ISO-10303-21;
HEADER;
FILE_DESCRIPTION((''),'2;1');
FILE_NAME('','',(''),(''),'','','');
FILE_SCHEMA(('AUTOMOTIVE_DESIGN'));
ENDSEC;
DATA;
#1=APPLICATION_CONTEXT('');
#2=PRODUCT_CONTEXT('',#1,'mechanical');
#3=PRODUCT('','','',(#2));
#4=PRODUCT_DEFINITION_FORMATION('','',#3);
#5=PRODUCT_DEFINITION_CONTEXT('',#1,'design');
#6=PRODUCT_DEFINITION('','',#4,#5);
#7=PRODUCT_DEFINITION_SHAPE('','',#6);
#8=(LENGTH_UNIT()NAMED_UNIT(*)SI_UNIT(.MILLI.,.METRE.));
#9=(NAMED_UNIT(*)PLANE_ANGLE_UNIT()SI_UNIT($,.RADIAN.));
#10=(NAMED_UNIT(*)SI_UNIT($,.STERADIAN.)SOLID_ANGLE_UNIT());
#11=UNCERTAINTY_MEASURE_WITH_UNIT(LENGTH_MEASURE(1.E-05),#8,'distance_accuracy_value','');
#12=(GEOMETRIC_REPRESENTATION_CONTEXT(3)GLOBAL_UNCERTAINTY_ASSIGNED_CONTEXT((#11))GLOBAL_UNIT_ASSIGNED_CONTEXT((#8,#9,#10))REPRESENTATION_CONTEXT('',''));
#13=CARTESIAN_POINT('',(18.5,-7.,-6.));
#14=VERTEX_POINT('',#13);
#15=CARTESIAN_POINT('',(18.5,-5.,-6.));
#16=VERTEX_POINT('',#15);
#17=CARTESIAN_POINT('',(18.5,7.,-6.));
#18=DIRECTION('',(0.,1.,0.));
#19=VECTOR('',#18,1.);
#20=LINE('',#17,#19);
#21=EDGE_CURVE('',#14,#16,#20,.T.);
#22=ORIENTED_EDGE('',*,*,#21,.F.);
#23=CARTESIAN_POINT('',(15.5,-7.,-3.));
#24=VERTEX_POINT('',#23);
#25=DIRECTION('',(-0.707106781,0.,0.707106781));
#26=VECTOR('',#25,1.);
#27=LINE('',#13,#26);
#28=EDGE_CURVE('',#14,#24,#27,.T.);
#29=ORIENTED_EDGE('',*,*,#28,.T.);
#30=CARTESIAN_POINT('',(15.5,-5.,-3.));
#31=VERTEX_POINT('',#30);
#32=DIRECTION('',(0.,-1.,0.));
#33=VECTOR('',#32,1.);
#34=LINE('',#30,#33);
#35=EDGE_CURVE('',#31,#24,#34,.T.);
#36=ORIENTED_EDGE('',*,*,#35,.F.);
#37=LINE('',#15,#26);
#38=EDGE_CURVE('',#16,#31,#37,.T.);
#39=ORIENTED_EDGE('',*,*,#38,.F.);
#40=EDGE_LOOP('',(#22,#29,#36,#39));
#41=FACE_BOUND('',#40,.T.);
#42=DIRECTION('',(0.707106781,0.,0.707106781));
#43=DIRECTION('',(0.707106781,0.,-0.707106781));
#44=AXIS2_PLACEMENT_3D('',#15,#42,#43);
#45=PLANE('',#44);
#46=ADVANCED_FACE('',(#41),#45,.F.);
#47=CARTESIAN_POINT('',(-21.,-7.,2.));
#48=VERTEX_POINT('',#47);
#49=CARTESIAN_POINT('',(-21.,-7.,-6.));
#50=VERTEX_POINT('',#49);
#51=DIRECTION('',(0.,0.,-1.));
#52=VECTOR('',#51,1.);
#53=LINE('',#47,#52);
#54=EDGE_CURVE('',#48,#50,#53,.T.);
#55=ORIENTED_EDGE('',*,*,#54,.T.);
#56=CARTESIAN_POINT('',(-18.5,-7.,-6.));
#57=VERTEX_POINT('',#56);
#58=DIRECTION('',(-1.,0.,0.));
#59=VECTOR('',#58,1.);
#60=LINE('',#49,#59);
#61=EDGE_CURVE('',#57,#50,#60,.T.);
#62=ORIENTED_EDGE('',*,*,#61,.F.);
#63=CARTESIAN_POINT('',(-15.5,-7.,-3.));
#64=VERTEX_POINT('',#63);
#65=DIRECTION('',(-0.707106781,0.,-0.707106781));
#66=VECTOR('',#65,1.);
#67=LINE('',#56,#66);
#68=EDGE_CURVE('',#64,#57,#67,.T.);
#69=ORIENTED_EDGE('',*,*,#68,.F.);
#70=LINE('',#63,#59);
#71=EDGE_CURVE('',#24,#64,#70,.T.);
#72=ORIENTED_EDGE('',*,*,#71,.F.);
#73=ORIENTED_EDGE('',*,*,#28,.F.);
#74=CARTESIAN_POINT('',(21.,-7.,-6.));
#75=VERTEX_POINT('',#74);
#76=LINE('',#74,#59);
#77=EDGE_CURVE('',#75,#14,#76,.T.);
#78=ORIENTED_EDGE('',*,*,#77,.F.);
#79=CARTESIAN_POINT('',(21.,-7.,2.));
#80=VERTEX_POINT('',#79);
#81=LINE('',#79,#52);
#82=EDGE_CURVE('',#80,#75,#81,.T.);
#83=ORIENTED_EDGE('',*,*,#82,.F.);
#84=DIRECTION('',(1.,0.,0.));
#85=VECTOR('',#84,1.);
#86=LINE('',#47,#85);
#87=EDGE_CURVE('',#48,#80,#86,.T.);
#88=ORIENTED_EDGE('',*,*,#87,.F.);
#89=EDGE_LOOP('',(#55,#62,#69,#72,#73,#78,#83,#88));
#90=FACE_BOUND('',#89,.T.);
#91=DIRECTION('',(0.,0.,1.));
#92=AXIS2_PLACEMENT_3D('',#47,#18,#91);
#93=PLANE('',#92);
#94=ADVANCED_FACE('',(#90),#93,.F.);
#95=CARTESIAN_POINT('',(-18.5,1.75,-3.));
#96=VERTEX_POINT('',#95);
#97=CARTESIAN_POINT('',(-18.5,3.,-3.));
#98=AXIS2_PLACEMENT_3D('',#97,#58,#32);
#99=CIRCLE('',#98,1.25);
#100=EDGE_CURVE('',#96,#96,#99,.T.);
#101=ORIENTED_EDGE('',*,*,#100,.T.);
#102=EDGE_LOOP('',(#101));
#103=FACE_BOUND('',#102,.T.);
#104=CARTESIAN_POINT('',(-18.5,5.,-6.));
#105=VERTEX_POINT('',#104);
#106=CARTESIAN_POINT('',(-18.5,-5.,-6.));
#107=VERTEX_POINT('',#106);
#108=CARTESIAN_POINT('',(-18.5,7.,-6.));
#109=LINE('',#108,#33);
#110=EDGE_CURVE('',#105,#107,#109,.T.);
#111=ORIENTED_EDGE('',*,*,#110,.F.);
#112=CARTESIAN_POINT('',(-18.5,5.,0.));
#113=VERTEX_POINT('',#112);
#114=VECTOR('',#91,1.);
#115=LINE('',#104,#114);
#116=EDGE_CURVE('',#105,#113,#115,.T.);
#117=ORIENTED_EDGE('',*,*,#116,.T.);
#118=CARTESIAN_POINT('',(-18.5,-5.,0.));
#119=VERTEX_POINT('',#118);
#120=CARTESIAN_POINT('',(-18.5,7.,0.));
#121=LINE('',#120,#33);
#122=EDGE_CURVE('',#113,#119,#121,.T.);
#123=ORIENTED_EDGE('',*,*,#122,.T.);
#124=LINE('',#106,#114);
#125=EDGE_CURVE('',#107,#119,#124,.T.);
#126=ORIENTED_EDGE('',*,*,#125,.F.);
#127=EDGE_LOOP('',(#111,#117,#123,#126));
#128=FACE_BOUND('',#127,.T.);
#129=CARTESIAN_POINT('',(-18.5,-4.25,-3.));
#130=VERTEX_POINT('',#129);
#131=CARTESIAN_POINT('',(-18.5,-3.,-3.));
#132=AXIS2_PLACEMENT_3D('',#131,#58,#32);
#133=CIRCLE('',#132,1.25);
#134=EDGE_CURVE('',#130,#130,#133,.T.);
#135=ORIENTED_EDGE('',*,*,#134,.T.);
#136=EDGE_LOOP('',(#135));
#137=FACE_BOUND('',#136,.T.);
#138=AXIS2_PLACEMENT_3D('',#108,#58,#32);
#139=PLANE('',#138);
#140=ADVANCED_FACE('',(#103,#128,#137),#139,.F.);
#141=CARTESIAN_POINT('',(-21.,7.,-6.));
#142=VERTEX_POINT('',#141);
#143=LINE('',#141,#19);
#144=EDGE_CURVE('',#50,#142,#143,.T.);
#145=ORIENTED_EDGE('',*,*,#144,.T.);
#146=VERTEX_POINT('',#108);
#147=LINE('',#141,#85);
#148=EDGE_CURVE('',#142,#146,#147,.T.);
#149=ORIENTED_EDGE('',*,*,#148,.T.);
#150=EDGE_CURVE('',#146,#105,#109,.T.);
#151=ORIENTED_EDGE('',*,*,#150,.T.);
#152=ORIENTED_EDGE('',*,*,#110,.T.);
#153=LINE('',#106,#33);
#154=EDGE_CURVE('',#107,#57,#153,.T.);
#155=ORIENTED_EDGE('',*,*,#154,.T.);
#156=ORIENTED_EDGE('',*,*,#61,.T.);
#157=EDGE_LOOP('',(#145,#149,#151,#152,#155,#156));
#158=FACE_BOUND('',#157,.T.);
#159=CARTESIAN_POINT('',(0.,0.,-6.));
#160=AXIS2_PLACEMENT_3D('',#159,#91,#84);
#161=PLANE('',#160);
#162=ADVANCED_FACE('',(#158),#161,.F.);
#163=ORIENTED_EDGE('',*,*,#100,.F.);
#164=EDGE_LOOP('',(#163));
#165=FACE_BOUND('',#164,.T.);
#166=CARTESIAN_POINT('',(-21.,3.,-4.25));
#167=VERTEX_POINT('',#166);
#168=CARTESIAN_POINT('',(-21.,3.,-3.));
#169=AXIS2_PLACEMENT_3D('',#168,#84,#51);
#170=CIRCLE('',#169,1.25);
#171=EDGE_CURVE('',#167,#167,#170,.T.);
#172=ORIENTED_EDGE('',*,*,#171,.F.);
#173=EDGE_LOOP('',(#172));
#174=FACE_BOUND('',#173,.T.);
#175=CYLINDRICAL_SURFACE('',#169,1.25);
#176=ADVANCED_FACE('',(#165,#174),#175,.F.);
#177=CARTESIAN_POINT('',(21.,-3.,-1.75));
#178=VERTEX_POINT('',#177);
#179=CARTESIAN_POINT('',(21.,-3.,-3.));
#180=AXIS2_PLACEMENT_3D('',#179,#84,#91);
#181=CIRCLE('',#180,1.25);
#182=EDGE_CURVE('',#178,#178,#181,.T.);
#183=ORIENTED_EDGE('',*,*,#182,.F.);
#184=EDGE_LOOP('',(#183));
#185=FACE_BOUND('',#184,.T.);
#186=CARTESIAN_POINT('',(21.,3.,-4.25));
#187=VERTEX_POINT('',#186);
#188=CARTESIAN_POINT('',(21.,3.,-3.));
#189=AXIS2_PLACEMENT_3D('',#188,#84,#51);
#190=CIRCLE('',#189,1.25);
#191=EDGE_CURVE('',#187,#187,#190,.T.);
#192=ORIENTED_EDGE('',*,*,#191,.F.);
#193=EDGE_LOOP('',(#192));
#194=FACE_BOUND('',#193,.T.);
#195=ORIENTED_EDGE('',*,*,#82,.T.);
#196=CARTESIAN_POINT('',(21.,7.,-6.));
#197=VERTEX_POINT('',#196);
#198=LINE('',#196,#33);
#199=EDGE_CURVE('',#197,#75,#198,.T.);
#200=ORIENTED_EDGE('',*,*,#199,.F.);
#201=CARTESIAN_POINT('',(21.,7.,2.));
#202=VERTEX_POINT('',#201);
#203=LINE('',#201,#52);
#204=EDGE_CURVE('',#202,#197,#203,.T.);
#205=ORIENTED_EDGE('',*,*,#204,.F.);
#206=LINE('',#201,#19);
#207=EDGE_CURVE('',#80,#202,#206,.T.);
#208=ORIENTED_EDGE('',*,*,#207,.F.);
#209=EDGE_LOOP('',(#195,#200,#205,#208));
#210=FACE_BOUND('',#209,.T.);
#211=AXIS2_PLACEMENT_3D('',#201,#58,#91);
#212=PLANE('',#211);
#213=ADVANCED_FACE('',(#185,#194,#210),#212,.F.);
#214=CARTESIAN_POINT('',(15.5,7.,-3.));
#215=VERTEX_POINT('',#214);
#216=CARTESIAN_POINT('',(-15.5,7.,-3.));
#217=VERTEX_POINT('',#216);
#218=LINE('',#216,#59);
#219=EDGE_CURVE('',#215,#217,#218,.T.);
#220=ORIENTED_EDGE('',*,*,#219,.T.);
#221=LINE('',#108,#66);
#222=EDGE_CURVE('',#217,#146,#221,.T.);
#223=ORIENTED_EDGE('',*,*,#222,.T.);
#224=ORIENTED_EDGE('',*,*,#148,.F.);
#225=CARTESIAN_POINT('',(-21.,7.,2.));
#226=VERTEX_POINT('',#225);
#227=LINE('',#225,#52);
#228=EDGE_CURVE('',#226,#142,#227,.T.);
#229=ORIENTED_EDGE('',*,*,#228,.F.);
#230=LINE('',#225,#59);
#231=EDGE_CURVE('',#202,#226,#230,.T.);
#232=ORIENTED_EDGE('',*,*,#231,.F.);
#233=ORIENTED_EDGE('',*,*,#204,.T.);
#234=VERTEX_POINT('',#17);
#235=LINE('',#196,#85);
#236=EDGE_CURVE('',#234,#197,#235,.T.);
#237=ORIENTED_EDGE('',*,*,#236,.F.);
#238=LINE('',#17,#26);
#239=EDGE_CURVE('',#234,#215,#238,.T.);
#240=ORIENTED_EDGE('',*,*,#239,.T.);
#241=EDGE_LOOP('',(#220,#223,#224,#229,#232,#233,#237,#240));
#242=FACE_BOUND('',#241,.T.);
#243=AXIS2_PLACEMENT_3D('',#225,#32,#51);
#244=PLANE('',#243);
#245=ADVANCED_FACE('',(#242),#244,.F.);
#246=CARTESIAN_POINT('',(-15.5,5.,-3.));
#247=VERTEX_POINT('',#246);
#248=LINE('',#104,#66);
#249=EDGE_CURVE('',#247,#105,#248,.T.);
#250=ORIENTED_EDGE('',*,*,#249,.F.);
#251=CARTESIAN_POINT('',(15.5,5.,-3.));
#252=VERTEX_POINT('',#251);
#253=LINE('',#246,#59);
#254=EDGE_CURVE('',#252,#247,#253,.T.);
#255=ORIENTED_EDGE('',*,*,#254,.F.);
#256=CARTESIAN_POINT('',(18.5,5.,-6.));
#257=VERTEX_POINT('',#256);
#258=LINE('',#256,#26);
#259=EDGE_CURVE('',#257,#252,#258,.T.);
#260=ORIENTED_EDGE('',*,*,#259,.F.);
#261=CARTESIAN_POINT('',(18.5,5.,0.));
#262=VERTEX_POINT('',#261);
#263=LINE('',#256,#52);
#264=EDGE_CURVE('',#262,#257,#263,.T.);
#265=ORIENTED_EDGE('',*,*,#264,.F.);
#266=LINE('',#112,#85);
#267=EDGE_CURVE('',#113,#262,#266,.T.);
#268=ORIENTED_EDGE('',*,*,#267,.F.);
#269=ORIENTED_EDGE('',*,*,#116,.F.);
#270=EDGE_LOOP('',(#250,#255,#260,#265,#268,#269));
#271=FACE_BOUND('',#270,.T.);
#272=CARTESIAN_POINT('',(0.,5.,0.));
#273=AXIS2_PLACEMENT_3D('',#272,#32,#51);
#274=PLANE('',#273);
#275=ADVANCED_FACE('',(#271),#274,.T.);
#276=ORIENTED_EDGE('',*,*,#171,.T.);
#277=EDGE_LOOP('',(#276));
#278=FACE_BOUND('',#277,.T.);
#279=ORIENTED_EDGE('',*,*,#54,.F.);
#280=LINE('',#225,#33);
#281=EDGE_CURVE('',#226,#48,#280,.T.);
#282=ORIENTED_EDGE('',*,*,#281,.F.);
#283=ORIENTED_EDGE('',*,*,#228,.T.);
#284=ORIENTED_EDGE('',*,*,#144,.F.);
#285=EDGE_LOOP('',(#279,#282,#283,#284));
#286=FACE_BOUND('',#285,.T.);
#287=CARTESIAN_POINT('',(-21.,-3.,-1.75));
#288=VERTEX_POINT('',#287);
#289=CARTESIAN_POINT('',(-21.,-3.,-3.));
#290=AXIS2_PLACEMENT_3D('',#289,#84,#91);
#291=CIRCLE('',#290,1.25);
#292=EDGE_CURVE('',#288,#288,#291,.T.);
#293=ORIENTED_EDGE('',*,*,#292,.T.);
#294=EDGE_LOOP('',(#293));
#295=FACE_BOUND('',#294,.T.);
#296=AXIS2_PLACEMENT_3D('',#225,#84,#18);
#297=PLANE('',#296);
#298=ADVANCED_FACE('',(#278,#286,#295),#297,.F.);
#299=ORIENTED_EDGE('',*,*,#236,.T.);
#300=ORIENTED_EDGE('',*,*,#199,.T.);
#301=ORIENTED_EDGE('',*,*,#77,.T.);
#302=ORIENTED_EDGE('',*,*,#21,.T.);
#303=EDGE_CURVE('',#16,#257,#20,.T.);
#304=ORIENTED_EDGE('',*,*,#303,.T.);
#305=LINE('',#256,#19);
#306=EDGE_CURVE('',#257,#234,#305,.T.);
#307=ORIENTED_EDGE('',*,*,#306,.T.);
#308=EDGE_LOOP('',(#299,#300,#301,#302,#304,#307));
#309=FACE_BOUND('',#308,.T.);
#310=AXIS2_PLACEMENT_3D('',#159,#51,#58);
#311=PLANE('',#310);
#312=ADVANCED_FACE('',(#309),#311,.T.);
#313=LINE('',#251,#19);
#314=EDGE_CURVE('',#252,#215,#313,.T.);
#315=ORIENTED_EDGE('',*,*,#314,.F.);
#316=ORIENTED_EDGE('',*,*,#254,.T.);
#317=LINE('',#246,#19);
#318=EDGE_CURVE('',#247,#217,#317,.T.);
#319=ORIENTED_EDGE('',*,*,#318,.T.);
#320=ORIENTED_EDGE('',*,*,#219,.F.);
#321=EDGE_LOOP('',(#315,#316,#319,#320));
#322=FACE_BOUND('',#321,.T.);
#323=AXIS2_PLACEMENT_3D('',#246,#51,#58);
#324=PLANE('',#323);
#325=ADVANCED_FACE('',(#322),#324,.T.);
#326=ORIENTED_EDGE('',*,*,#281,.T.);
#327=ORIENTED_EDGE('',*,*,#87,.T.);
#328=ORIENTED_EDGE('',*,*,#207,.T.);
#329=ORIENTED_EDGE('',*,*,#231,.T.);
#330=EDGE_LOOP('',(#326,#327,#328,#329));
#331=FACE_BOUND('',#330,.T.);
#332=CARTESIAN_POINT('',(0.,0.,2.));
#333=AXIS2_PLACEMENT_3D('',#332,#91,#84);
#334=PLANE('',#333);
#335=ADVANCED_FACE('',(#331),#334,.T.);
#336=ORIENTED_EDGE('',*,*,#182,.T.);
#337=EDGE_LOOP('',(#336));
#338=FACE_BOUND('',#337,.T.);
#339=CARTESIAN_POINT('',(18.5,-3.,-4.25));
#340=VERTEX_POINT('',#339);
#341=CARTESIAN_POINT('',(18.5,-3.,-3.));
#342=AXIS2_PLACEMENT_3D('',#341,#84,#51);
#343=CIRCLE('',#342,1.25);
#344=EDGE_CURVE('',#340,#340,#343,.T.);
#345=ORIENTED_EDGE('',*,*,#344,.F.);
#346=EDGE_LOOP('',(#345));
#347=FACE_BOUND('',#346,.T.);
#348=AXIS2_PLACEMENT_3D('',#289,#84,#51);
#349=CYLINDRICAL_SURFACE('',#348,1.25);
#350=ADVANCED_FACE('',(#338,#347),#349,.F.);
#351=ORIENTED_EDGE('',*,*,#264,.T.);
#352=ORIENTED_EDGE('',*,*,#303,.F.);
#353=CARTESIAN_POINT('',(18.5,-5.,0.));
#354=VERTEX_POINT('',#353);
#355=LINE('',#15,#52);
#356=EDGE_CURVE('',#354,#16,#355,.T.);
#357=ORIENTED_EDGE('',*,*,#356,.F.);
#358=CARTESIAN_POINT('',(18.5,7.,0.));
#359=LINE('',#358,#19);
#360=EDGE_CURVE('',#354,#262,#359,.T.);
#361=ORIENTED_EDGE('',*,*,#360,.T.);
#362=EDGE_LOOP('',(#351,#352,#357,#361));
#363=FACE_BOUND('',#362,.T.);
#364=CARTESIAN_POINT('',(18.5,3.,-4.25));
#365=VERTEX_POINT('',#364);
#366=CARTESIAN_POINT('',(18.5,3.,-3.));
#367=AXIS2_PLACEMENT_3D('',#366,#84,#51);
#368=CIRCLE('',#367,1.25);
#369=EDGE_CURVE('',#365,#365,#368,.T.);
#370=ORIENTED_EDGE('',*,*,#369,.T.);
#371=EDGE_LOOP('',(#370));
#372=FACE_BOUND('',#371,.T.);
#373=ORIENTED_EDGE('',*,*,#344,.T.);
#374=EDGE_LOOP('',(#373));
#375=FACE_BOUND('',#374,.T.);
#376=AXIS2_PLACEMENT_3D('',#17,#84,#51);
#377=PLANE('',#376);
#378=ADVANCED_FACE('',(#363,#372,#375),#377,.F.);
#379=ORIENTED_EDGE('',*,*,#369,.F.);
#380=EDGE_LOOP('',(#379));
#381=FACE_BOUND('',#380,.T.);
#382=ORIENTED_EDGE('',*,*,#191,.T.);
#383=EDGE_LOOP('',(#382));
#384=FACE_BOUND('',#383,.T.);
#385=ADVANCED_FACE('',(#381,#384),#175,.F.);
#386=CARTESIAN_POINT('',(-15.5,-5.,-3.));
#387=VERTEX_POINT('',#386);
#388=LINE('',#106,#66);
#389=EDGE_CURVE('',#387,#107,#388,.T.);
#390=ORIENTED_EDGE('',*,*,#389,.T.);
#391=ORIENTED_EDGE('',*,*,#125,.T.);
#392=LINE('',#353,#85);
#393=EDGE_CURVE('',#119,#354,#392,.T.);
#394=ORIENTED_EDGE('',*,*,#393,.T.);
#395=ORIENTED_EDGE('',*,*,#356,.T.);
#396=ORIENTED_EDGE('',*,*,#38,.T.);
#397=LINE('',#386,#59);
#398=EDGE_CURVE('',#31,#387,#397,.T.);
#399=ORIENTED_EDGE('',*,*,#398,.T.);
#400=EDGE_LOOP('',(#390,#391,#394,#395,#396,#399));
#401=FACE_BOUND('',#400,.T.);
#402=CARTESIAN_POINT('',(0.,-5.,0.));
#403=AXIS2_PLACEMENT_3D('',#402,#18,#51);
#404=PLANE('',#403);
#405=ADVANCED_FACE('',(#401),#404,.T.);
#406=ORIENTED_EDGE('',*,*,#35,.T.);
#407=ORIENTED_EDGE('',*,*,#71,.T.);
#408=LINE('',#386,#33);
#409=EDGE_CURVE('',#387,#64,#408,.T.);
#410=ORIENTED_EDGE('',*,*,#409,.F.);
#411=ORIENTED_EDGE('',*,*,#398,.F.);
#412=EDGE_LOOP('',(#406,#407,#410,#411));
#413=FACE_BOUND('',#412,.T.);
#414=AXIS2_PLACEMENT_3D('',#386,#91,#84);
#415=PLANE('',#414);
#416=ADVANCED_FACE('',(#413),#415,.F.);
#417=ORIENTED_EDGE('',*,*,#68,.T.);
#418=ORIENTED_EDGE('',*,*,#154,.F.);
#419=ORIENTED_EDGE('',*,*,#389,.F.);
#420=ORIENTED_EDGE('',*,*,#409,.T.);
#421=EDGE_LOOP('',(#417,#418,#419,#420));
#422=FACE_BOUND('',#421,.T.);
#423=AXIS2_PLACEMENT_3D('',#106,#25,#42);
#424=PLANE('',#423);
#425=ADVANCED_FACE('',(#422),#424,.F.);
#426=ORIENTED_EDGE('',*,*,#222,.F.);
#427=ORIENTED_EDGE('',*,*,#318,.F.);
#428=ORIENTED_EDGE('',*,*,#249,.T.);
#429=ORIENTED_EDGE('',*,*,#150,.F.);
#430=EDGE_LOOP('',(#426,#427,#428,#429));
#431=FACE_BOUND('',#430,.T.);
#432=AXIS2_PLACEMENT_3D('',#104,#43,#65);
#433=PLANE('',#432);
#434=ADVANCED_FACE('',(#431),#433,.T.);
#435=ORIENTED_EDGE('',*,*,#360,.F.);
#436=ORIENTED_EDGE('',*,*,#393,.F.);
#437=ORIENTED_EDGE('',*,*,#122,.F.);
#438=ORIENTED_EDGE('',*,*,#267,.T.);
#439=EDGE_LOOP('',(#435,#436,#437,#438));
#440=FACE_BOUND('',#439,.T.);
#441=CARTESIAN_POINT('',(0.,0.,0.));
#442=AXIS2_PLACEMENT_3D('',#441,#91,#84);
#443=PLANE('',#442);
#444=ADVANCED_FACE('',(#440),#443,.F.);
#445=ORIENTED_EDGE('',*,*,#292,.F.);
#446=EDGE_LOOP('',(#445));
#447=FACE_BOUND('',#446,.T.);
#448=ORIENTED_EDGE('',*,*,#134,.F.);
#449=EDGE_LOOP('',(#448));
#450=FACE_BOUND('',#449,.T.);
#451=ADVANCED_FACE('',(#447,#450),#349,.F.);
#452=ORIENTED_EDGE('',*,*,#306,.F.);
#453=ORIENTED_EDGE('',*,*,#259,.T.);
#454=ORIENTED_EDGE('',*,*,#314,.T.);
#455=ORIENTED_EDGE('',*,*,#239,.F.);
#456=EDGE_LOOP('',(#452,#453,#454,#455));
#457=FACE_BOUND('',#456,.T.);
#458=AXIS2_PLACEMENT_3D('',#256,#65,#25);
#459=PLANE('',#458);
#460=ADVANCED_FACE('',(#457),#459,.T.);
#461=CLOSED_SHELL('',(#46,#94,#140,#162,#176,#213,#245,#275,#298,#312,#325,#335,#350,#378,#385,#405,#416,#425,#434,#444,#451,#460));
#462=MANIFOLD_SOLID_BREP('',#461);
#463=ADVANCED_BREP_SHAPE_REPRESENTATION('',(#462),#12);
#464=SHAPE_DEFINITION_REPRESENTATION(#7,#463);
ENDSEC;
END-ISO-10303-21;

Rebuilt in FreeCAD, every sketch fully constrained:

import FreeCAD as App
import Part
import Sketcher


def add_polygon(sketch, points):
    """Adds a closed chain of lines whose ends are joined by coincident constraints."""
    first, n = sketch.GeometryCount, len(points)
    for a, b in zip(points, points[1:] + points[:1]):
        sketch.addGeometry(Part.LineSegment(App.Vector(*a, 0), App.Vector(*b, 0)), False)
    for i in range(n):
        sketch.addConstraint(Sketcher.Constraint("Coincident", first + i, 2, first + (i + 1) % n, 1))

doc = App.newDocument("Part")
body = doc.addObject("PartDesign::Body", "Body")

# Sketch on XY plane
sketch1 = doc.addObject("Sketcher::SketchObject", "Sketch")
body.addObject(sketch1)
sketch1.AttachmentSupport = (doc.XY_Plane, [""])
sketch1.MapMode = "FlatFace"
add_polygon(sketch1, [(-21, 7), (-21, -7), (21, -7), (21, 7)])  # lines 0-3
sketch1.addConstraint([
    Sketcher.Constraint("Vertical", 0),
    Sketcher.Constraint("Horizontal", 1),
    Sketcher.Constraint("Vertical", 2),
    Sketcher.Constraint("Horizontal", 3),
    Sketcher.Constraint("Symmetric", 0, 2, 2, 2, -1, 1),
    Sketcher.Constraint("DistanceX", 1, 1, 1, 2, 42.0),
    Sketcher.Constraint("DistanceY", 0, 2, 0, 1, 14.0),
])
pad1 = doc.addObject("PartDesign::Pad", "Pad")
body.addObject(pad1)
pad1.Profile = sketch1
pad1.Length = 2

# Sketch on XY plane
sketch2 = doc.addObject("Sketcher::SketchObject", "Sketch001")
body.addObject(sketch2)
sketch2.AttachmentSupport = (doc.XY_Plane, [""])
sketch2.MapMode = "FlatFace"
add_polygon(sketch2, [(21, 7), (21, -7), (18.5, -7), (18.5, 7)])  # lines 0-3
add_polygon(sketch2, [(-18.5, 7), (-18.5, -7), (-21, -7), (-21, 7)])  # lines 4-7
sketch2.addConstraint([
    Sketcher.Constraint("Vertical", 0),
    Sketcher.Constraint("Horizontal", 1),
    Sketcher.Constraint("Vertical", 2),
    Sketcher.Constraint("Horizontal", 3),
    Sketcher.Constraint("Vertical", 4),
    Sketcher.Constraint("Horizontal", 5),
    Sketcher.Constraint("Vertical", 6),
    Sketcher.Constraint("Horizontal", 7),
    Sketcher.Constraint("Symmetric", 2, 2, 4, 2, -1, 1),
    Sketcher.Constraint("Symmetric", 0, 2, 6, 2, -1, 1),
    Sketcher.Constraint("Horizontal", 1, 2, 4, 2),
    Sketcher.Constraint("DistanceY", 0, 2, 0, 1, 14.0),
    Sketcher.Constraint("DistanceX", 1, 2, 1, 1, 2.5),
    Sketcher.Constraint("DistanceX", -1, 1, 0, 2, 21.0),
])
pad2 = doc.addObject("PartDesign::Pad", "Pad001")
body.addObject(pad2)
pad2.Profile = sketch2
pad2.Length = 6
pad2.Reversed = True

# Sketch on YZ plane
sketch3 = doc.addObject("Sketcher::SketchObject", "Sketch002")
body.addObject(sketch3)
sketch3.AttachmentSupport = (doc.YZ_Plane, [""])
sketch3.MapMode = "FlatFace"
sketch3.AttachmentOffset = App.Placement(App.Vector(0, 0, 21), App.Rotation())
sketch3.addGeometry([
    Part.Circle(App.Vector(3, -3, 0), App.Vector(0, 0, 1), 1.25),
    Part.Circle(App.Vector(-3, -3, 0), App.Vector(0, 0, 1), 1.25),
], False)
sketch3.addConstraint([
    Sketcher.Constraint("Equal", 0, 1),
    Sketcher.Constraint("Symmetric", 0, 3, 1, 3, -2),
    Sketcher.Constraint("Diameter", 0, 2.5),
    Sketcher.Constraint("DistanceX", -1, 1, 0, 3, 3.0),
    Sketcher.Constraint("DistanceY", 0, 3, -1, 1, 3.0),
])
pocket1 = doc.addObject("PartDesign::Pocket", "Pocket")
body.addObject(pocket1)
pocket1.Profile = sketch3
pocket1.Type = "ThroughAll"

# Sketch on XZ plane
sketch4 = doc.addObject("Sketcher::SketchObject", "Sketch003")
body.addObject(sketch4)
sketch4.AttachmentSupport = (doc.XZ_Plane, [""])
sketch4.MapMode = "FlatFace"
sketch4.AttachmentOffset = App.Placement(App.Vector(0, 0, -7), App.Rotation())
add_polygon(sketch4, [(-18.5, -6), (-18.5, 0), (18.5, 0), (18.5, -6), (15.5, -3), (-15.5, -3)])  # lines 0-5
sketch4.addConstraint([
    Sketcher.Constraint("Vertical", 0),
    Sketcher.Constraint("Horizontal", 1),
    Sketcher.Constraint("Vertical", 2),
    Sketcher.Constraint("Horizontal", 4),
    Sketcher.Constraint("Symmetric", 0, 2, 1, 2, -1, 1),
    Sketcher.Constraint("Perpendicular", 3, 5),
    Sketcher.Constraint("Horizontal", 2, 2, 5, 2),
    Sketcher.Constraint("Equal", 3, 5),
    Sketcher.Constraint("DistanceX", 1, 1, 1, 2, 37.0),
    Sketcher.Constraint("DistanceX", 4, 2, 4, 1, 31.0),
    Sketcher.Constraint("DistanceY", 0, 1, 0, 2, 6.0),
])
pad3 = doc.addObject("PartDesign::Pad", "Pad002")
body.addObject(pad3)
pad3.Profile = sketch4
pad3.Length = 2
doc.recompute()

mirrored = doc.addObject("PartDesign::Mirrored", "Mirrored")
body.addObject(mirrored)
mirrored.Originals = [pad3]
mirrored.MirrorPlane = (doc.XZ_Plane, [""])
body.Tip = mirrored

doc.recompute()
